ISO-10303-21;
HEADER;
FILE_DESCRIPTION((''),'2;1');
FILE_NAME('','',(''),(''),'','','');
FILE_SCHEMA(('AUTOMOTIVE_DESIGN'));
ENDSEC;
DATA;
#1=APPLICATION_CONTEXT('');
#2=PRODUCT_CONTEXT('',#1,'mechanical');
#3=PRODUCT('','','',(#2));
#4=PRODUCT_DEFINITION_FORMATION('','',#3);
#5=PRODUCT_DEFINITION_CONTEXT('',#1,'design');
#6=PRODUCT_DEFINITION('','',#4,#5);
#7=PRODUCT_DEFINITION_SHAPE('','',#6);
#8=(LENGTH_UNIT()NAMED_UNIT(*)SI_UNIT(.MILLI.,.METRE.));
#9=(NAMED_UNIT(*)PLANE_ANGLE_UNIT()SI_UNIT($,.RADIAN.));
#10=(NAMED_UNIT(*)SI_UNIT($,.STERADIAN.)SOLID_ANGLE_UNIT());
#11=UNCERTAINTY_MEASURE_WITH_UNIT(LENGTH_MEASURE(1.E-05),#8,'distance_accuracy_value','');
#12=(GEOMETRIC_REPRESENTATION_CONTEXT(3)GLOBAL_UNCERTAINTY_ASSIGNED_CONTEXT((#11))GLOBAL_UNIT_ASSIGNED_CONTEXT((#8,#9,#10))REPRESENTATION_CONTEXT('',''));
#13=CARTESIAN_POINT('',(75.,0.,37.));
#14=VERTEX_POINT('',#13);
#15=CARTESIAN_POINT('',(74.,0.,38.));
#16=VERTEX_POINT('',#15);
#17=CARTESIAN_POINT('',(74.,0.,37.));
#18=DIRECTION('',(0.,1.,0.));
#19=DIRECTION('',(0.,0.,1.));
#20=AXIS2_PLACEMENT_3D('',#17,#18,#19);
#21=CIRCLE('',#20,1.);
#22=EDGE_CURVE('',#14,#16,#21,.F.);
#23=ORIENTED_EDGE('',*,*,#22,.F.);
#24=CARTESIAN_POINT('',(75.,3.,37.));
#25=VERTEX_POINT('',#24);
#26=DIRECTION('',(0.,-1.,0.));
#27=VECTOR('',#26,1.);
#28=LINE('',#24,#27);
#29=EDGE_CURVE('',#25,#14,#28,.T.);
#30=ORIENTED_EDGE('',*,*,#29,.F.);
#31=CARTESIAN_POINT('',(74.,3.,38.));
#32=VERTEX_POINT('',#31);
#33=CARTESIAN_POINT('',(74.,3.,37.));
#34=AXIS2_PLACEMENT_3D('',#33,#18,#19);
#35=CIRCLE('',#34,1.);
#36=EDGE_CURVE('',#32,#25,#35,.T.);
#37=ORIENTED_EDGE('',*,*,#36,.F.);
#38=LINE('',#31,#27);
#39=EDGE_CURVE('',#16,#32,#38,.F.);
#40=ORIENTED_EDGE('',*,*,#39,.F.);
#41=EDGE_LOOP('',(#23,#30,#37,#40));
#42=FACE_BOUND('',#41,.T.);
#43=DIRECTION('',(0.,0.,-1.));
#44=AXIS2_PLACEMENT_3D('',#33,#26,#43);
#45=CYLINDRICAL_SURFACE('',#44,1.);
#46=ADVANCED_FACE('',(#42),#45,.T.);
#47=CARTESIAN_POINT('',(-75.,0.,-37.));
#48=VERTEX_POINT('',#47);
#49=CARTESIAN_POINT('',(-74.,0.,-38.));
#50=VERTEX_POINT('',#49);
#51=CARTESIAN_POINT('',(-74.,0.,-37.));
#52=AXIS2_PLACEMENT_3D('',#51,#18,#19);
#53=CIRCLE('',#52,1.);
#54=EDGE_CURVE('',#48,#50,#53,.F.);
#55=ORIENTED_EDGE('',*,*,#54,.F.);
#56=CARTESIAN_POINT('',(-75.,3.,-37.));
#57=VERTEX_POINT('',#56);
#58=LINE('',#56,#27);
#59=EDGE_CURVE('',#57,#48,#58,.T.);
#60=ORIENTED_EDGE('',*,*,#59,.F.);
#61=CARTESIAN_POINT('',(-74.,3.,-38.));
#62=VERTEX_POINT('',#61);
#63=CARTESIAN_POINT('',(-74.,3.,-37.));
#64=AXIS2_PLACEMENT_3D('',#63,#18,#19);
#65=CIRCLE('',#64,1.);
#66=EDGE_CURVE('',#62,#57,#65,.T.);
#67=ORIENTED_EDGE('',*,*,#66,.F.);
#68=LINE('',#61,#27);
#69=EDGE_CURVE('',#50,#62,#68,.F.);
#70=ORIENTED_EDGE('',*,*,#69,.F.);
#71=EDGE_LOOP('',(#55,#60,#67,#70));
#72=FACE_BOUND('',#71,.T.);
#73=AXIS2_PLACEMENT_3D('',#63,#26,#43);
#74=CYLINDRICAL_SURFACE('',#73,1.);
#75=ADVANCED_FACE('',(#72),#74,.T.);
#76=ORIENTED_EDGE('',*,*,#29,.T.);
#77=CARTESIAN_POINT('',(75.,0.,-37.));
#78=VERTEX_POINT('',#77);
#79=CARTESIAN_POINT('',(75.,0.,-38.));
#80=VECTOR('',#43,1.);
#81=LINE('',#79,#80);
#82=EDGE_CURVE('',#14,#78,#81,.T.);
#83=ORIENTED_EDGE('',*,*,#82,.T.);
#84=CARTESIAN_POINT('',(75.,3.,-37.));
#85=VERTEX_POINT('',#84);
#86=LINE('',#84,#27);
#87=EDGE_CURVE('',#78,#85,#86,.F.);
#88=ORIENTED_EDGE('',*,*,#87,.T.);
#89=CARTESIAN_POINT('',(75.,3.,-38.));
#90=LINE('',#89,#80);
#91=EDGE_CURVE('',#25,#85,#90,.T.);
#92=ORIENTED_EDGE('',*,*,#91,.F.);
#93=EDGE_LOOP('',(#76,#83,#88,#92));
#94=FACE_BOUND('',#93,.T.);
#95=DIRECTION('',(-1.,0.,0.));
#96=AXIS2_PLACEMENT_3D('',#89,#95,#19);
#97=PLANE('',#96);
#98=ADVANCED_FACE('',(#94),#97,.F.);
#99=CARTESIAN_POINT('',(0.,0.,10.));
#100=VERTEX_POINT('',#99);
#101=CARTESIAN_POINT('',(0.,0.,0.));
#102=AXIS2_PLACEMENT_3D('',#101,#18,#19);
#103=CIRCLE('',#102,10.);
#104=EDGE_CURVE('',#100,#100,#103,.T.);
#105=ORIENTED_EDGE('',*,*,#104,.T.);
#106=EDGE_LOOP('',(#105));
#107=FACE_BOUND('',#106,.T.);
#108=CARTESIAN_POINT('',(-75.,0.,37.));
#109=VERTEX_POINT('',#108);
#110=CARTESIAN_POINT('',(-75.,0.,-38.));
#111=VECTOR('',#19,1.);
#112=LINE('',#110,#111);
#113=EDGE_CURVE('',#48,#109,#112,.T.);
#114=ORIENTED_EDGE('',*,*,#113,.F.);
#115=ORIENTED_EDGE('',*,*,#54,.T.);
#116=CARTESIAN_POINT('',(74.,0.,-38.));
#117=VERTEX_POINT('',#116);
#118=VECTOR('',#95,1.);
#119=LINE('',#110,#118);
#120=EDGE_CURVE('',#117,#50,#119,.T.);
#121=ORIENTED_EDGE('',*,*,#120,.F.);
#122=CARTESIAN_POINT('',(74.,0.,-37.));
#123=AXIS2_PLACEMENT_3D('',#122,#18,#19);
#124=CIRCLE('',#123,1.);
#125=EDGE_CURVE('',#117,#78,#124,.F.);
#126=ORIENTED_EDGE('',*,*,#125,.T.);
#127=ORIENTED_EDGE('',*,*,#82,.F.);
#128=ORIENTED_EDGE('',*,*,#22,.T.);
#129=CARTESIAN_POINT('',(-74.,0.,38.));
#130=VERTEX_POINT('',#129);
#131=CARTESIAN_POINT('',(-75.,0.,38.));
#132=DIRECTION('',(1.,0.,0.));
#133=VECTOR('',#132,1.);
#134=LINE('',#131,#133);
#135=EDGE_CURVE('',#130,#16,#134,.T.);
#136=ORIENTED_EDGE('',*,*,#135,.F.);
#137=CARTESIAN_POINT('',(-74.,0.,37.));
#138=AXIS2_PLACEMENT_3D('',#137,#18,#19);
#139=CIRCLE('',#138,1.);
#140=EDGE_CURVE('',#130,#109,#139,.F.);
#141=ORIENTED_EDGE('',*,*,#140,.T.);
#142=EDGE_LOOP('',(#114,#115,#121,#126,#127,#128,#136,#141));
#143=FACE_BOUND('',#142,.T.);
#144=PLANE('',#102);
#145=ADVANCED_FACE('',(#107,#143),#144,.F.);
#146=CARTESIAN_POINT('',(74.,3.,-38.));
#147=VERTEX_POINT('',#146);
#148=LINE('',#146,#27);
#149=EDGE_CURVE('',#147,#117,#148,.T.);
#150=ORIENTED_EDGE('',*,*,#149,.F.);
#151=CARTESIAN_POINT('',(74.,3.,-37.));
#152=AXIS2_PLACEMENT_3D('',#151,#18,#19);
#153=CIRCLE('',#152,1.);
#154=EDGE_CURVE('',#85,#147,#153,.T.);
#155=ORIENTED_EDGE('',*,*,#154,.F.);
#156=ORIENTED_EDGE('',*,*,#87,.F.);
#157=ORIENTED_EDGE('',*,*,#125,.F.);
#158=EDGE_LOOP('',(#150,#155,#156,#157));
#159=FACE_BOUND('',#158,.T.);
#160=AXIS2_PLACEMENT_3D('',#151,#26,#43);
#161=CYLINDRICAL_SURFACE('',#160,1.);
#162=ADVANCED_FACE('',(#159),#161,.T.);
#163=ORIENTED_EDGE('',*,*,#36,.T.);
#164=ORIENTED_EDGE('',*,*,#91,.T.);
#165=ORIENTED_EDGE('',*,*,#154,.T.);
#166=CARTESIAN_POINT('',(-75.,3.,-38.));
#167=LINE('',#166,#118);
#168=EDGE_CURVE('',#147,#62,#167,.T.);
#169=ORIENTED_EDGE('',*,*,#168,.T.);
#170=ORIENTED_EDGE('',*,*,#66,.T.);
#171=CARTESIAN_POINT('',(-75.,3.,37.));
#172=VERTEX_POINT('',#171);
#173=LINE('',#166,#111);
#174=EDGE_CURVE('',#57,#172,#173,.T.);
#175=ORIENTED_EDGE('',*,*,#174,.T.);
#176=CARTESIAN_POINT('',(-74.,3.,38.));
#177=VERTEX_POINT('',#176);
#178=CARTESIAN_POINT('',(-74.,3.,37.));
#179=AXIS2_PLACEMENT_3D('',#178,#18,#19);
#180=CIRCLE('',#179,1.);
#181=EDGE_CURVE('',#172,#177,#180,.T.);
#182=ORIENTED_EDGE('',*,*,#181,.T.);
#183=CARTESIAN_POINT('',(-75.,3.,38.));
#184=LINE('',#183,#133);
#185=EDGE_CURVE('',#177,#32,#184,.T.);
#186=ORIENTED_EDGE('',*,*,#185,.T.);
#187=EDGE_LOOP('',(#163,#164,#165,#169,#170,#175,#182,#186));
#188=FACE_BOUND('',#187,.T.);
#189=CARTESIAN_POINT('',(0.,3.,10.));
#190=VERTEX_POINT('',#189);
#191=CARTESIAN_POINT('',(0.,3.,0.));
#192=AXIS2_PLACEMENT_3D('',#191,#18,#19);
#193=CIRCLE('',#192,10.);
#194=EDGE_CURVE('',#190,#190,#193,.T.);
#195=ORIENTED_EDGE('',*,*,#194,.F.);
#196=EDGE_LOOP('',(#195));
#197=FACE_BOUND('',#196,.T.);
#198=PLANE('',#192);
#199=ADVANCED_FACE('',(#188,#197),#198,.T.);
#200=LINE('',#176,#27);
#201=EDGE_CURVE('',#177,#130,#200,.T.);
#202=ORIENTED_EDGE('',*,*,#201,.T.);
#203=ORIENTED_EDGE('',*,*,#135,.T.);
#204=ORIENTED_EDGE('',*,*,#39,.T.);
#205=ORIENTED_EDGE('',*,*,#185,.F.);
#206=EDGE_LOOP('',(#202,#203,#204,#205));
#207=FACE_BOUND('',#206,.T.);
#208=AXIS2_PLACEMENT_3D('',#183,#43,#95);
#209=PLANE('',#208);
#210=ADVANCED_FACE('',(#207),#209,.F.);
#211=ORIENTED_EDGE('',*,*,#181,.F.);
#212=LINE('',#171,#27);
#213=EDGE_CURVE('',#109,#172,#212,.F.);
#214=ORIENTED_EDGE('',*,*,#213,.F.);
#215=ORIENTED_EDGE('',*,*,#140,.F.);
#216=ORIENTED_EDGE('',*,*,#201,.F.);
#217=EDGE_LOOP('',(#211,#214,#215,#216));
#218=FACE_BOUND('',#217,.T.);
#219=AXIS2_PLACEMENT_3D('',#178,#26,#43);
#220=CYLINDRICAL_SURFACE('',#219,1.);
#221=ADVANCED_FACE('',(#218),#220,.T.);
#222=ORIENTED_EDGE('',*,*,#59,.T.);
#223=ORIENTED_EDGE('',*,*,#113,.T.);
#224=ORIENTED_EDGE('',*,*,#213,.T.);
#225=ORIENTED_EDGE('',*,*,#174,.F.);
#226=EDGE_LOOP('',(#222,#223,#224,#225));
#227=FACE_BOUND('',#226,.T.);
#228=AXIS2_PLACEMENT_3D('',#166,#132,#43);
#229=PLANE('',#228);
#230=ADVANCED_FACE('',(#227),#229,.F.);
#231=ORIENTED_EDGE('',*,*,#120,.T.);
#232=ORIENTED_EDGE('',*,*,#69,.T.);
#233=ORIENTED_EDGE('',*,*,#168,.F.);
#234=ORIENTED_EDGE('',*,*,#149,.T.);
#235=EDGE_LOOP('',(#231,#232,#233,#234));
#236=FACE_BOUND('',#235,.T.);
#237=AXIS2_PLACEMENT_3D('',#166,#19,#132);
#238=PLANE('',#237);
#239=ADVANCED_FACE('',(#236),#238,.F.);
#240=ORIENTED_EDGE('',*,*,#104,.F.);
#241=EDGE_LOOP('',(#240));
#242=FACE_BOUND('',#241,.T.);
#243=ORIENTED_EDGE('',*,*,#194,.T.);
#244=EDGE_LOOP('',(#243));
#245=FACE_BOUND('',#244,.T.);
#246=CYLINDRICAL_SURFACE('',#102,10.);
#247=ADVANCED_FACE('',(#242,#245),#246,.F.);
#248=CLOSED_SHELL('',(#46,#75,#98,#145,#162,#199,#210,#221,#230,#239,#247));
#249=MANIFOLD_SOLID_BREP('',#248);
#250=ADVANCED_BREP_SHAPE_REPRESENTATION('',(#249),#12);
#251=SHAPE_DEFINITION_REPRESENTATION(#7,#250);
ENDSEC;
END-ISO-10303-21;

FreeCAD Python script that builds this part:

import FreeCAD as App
import Part
import Sketcher

V = App.Vector
Q = App.Units.Quantity


def edges_at(feature, points):
    """Names of the edges that pass closest to the given points."""
    edges = feature.Shape.Edges
    near = lambda p: min(range(len(edges)), key=lambda i: edges[i].distToShape(Part.Vertex(*p))[0])
    return sorted({f"Edge{near(p) + 1}" for p in points})

doc = App.newDocument("Part")
body = doc.addObject("PartDesign::Body", "Body")

# Sketch on XZ plane
sketch1 = doc.addObject("Sketcher::SketchObject", "Sketch")
body.addObject(sketch1)
sketch1.AttachmentSupport = (doc.XZ_Plane, [""])
sketch1.MapMode = "FlatFace"
sketch1.addGeometry(Part.LineSegment(V(-75, -38, 0), V(-75, 38, 0)), False)
sketch1.addGeometry(Part.LineSegment(V(-75, 38, 0), V(75, 38, 0)), False)
sketch1.addGeometry(Part.LineSegment(V(75, 38, 0), V(75, -38, 0)), False)
sketch1.addGeometry(Part.LineSegment(V(75, -38, 0), V(-75, -38, 0)), False)
sketch1.addConstraint(Sketcher.Constraint("Coincident", 0, 2, 1, 1))
sketch1.addConstraint(Sketcher.Constraint("Coincident", 1, 2, 2, 1))
sketch1.addConstraint(Sketcher.Constraint("Coincident", 2, 2, 3, 1))
sketch1.addConstraint(Sketcher.Constraint("Coincident", 3, 2, 0, 1))
sketch1.addConstraint(Sketcher.Constraint("Vertical", 0))
sketch1.addConstraint(Sketcher.Constraint("Horizontal", 1))
sketch1.addConstraint(Sketcher.Constraint("Vertical", 2))
sketch1.addConstraint(Sketcher.Constraint("Horizontal", 3))
sketch1.addConstraint(Sketcher.Constraint("Symmetric", 0, 2, 2, 2, -1, 1))
sketch1.addConstraint(Sketcher.Constraint("DistanceX", 1, 1, 1, 2, Q("150 mm")))
sketch1.addConstraint(Sketcher.Constraint("DistanceY", 0, 1, 0, 2, Q("76 mm")))
pad1 = doc.addObject("PartDesign::Pad", "Pad")
body.addObject(pad1)
pad1.Profile = sketch1
pad1.Length = 3
pad1.Reversed = True
doc.recompute()

fillet = doc.addObject("PartDesign::Fillet", "Fillet")
body.addObject(fillet)
fillet.Base = (pad1, edges_at(pad1, [
    (75, 1.5, 38),
    (-75, 1.5, 38),
    (-75, 1.5, -38),
    (75, 1.5, -38),
]))
fillet.Radius = 1

# Sketch on XZ plane
sketch2 = doc.addObject("Sketcher::SketchObject", "Sketch001")
body.addObject(sketch2)
sketch2.AttachmentSupport = (doc.XZ_Plane, [""])
sketch2.MapMode = "FlatFace"
sketch2.AttachmentOffset = App.Placement(V(0, 0, -3), App.Rotation())
sketch2.addGeometry(Part.Circle(V(0, 0, 0), V(0, 0, 1), 10), False)
sketch2.addConstraint(Sketcher.Constraint("Coincident", 0, 3, -1, 1))
sketch2.addConstraint(Sketcher.Constraint("Diameter", 0, Q("20 mm")))
pocket1 = doc.addObject("PartDesign::Pocket", "Pocket")
body.addObject(pocket1)
pocket1.Profile = sketch2
pocket1.Type = "ThroughAll"
pocket1.Reversed = True

doc.recompute()
